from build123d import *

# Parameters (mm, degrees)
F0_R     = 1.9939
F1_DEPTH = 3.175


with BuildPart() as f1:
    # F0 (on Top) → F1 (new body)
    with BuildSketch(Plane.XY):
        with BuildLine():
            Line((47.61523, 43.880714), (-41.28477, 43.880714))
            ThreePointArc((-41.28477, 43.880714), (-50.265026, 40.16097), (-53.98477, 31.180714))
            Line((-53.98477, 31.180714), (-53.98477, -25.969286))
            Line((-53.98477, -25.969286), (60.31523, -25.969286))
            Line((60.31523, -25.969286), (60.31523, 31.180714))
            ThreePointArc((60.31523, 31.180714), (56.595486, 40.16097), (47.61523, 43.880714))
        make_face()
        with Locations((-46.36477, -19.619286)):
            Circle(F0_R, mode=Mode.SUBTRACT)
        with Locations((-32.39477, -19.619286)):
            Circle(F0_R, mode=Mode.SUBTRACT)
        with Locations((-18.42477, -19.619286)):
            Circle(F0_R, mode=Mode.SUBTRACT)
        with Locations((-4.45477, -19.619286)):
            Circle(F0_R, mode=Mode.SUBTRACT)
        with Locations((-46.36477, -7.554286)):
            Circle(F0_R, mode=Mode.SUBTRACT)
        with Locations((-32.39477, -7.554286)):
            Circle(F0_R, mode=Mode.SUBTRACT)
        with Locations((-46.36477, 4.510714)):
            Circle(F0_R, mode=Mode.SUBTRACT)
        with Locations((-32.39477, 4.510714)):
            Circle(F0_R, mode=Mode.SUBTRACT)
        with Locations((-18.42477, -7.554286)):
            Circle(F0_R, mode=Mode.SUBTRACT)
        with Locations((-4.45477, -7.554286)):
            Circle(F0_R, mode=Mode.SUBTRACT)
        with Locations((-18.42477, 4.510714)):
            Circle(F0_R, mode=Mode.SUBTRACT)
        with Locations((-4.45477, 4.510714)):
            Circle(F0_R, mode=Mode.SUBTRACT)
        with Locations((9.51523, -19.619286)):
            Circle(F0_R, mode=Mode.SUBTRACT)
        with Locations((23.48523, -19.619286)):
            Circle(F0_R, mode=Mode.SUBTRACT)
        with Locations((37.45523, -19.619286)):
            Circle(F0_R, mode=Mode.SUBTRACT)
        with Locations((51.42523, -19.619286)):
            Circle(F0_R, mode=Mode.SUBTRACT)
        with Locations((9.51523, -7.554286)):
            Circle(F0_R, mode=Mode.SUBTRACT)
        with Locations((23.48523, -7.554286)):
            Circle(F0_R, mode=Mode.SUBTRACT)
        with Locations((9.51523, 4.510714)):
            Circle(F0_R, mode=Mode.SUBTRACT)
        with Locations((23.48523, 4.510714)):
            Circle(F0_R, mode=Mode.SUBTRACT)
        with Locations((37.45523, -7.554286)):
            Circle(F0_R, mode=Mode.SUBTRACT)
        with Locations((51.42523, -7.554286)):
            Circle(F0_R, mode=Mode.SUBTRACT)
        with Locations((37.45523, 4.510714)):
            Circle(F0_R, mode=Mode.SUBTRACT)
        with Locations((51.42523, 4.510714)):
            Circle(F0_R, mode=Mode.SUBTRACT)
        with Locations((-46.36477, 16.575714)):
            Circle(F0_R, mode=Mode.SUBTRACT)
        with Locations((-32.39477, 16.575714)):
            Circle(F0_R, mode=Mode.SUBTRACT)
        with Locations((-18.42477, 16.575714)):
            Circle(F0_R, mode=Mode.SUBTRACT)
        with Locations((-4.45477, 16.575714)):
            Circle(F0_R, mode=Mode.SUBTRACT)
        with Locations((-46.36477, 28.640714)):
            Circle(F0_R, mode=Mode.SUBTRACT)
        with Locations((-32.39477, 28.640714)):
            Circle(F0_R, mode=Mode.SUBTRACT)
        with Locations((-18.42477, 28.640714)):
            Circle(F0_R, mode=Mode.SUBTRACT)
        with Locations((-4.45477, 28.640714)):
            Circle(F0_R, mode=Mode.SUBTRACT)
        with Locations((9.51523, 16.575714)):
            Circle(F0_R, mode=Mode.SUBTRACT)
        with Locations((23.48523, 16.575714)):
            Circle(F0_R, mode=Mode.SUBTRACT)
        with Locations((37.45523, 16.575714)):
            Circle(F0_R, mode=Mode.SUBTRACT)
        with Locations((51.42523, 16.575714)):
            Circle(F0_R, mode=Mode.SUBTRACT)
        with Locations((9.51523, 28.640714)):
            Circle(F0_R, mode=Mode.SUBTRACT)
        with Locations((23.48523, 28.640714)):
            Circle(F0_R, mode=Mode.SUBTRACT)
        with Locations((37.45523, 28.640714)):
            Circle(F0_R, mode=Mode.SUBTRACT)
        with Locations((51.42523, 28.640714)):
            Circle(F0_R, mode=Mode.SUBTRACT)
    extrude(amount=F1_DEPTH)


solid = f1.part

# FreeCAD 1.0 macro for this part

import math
import FreeCAD as App
import Part
import Sketcher

V = App.Vector
Q = App.Units.Quantity

doc = App.newDocument("Part")
body = doc.addObject("PartDesign::Body", "Body")

sketch1 = doc.addObject("Sketcher::SketchObject", "Sketch")
body.addObject(sketch1)
sketch1.AttachmentSupport = (doc.XY_Plane, [""])
sketch1.MapMode = "FlatFace"
sketch1.addGeometry([
    Part.LineSegment(V(47.6, 43.9, 0), V(-41.3, 43.9, 0)),
    Part.ArcOfCircle(Part.Circle(V(-41.3, 31.2, 0), V(0, 0, 1), 12.7), math.radians(90), math.radians(180)),
    Part.LineSegment(V(-54, 31.2, 0), V(-54, -26, 0)),
    Part.LineSegment(V(-54, -26, 0), V(60.3, -26, 0)),
    Part.LineSegment(V(60.3, -26, 0), V(60.3, 31.2, 0)),
    Part.ArcOfCircle(Part.Circle(V(47.6, 31.2, 0), V(0, 0, 1), 12.7), math.radians(0), math.radians(90)),
    Part.Circle(V(-46.4, -19.6, 0), V(0, 0, 1), 2),
    Part.Circle(V(-32.4, -19.6, 0), V(0, 0, 1), 2),
    Part.Circle(V(-18.4, -19.6, 0), V(0, 0, 1), 2),
    Part.Circle(V(-4.5, -19.6, 0), V(0, 0, 1), 2),
    Part.Circle(V(-46.4, -7.6, 0), V(0, 0, 1), 2),
    Part.Circle(V(-32.4, -7.6, 0), V(0, 0, 1), 2),
    Part.Circle(V(-18.4, -7.6, 0), V(0, 0, 1), 2),
    Part.Circle(V(-4.5, -7.6, 0), V(0, 0, 1), 2),
    Part.Circle(V(9.5, -19.6, 0), V(0, 0, 1), 2),
    Part.Circle(V(23.5, -19.6, 0), V(0, 0, 1), 2),
    Part.Circle(V(37.5, -19.6, 0), V(0, 0, 1), 2),
    Part.Circle(V(51.4, -19.6, 0), V(0, 0, 1), 2),
    Part.Circle(V(9.5, -7.6, 0), V(0, 0, 1), 2),
    Part.Circle(V(23.5, -7.6, 0), V(0, 0, 1), 2),
    Part.Circle(V(37.5, -7.6, 0), V(0, 0, 1), 2),
    Part.Circle(V(51.4, -7.6, 0), V(0, 0, 1), 2),
    Part.Circle(V(-46.4, 4.5, 0), V(0, 0, 1), 2),
    Part.Circle(V(-32.4, 4.5, 0), V(0, 0, 1), 2),
    Part.Circle(V(-46.4, 16.6, 0), V(0, 0, 1), 2),
    Part.Circle(V(-32.4, 16.6, 0), V(0, 0, 1), 2),
    Part.Circle(V(-18.4, 4.5, 0), V(0, 0, 1), 2),
    Part.Circle(V(-4.5, 4.5, 0), V(0, 0, 1), 2),
    Part.Circle(V(-18.4, 16.6, 0), V(0, 0, 1), 2),
    Part.Circle(V(-4.5, 16.6, 0), V(0, 0, 1), 2),
    Part.Circle(V(-46.4, 28.6, 0), V(0, 0, 1), 2),
    Part.Circle(V(-32.4, 28.6, 0), V(0, 0, 1), 2),
    Part.Circle(V(-18.4, 28.6, 0), V(0, 0, 1), 2),
    Part.Circle(V(-4.5, 28.6, 0), V(0, 0, 1), 2),
    Part.Circle(V(9.5, 4.5, 0), V(0, 0, 1), 2),
    Part.Circle(V(23.5, 4.5, 0), V(0, 0, 1), 2),
    Part.Circle(V(9.5, 16.6, 0), V(0, 0, 1), 2),
    Part.Circle(V(23.5, 16.6, 0), V(0, 0, 1), 2),
    Part.Circle(V(37.5, 4.5, 0), V(0, 0, 1), 2),
    Part.Circle(V(51.4, 4.5, 0), V(0, 0, 1), 2),
    Part.Circle(V(37.5, 16.6, 0), V(0, 0, 1), 2),
    Part.Circle(V(51.4, 16.6, 0), V(0, 0, 1), 2),
    Part.Circle(V(9.5, 28.6, 0), V(0, 0, 1), 2),
    Part.Circle(V(23.5, 28.6, 0), V(0, 0, 1), 2),
    Part.Circle(V(37.5, 28.6, 0), V(0, 0, 1), 2),
    Part.Circle(V(51.4, 28.6, 0), V(0, 0, 1), 2),
], False)
sketch1.addConstraint([
    Sketcher.Constraint("Tangent", 0, 2, 1, 1),
    Sketcher.Constraint("Tangent", 1, 2, 2, 1),
    Sketcher.Constraint("Coincident", 2, 2, 3, 1),
    Sketcher.Constraint("Coincident", 3, 2, 4, 1),
    Sketcher.Constraint("Tangent", 4, 2, 5, 1),
    Sketcher.Constraint("Tangent", 5, 2, 0, 1),
    Sketcher.Constraint("Horizontal", 0),
    Sketcher.Constraint("Vertical", 2),
    Sketcher.Constraint("Horizontal", 3),
    Sketcher.Constraint("Vertical", 4),
    Sketcher.Constraint("Equal", 1, 5),
    Sketcher.Constraint("Equal", 6, 7),
    Sketcher.Constraint("Equal", 7, 8),
    Sketcher.Constraint("Equal", 8, 9),
    Sketcher.Constraint("Equal", 9, 10),
    Sketcher.Constraint("Equal", 10, 11),
    Sketcher.Constraint("Equal", 11, 12),
    Sketcher.Constraint("Equal", 12, 13),
    Sketcher.Constraint("Equal", 13, 14),
    Sketcher.Constraint("Equal", 14, 15),
    Sketcher.Constraint("Equal", 15, 16),
    Sketcher.Constraint("Equal", 16, 17),
    Sketcher.Constraint("Equal", 17, 18),
    Sketcher.Constraint("Equal", 18, 19),
    Sketcher.Constraint("Equal", 19, 20),
    Sketcher.Constraint("Equal", 20, 21),
    Sketcher.Constraint("Equal", 21, 22),
    Sketcher.Constraint("Equal", 22, 23),
    Sketcher.Constraint("Equal", 23, 24),
    Sketcher.Constraint("Equal", 24, 25),
    Sketcher.Constraint("Equal", 25, 26),
    Sketcher.Constraint("Equal", 26, 27),
    Sketcher.Constraint("Equal", 27, 28),
    Sketcher.Constraint("Equal", 28, 29),
    Sketcher.Constraint("Equal", 29, 30),
    Sketcher.Constraint("Equal", 30, 31),
    Sketcher.Constraint("Equal", 31, 32),
    Sketcher.Constraint("Equal", 32, 33),
    Sketcher.Constraint("Equal", 33, 34),
    Sketcher.Constraint("Equal", 34, 35),
    Sketcher.Constraint("Equal", 35, 36),
    Sketcher.Constraint("Equal", 36, 37),
    Sketcher.Constraint("Equal", 37, 38),
    Sketcher.Constraint("Equal", 38, 39),
    Sketcher.Constraint("Equal", 39, 40),
    Sketcher.Constraint("Equal", 40, 41),
    Sketcher.Constraint("Equal", 41, 42),
    Sketcher.Constraint("Equal", 42, 43),
    Sketcher.Constraint("Equal", 43, 44),
    Sketcher.Constraint("Equal", 44, 45),
    Sketcher.Constraint("Horizontal", 6, 3, 7, 3),
    Sketcher.Constraint("Horizontal", 7, 3, 8, 3),
    Sketcher.Constraint("Horizontal", 8, 3, 9, 3),
    Sketcher.Constraint("Horizontal", 10, 3, 11, 3),
    Sketcher.Constraint("Horizontal", 11, 3, 12, 3),
    Sketcher.Constraint("Horizontal", 12, 3, 13, 3),
    Sketcher.Constraint("Horizontal", 9, 3, 14, 3),
    Sketcher.Constraint("Horizontal", 14, 3, 15, 3),
    Sketcher.Constraint("Horizontal", 15, 3, 16, 3),
    Sketcher.Constraint("Horizontal", 16, 3, 17, 3),
    Sketcher.Constraint("Horizontal", 13, 3, 18, 3),
    Sketcher.Constraint("Horizontal", 18, 3, 19, 3),
    Sketcher.Constraint("Horizontal", 19, 3, 20, 3),
    Sketcher.Constraint("Horizontal", 20, 3, 21, 3),
    Sketcher.Constraint("Horizontal", 22, 3, 23, 3),
    Sketcher.Constraint("Horizontal", 24, 3, 25, 3),
    Sketcher.Constraint("Horizontal", 23, 3, 26, 3),
    Sketcher.Constraint("Horizontal", 26, 3, 27, 3),
    Sketcher.Constraint("Horizontal", 25, 3, 28, 3),
    Sketcher.Constraint("Horizontal", 28, 3, 29, 3),
    Sketcher.Constraint("Horizontal", 30, 3, 31, 3),
    Sketcher.Constraint("Horizontal", 31, 3, 32, 3),
    Sketcher.Constraint("Horizontal", 32, 3, 33, 3),
    Sketcher.Constraint("Horizontal", 27, 3, 34, 3),
    Sketcher.Constraint("Horizontal", 34, 3, 35, 3),
    Sketcher.Constraint("Horizontal", 29, 3, 36, 3),
    Sketcher.Constraint("Horizontal", 36, 3, 37, 3),
    Sketcher.Constraint("Horizontal", 35, 3, 38, 3),
    Sketcher.Constraint("Horizontal", 38, 3, 39, 3),
    Sketcher.Constraint("Horizontal", 37, 3, 40, 3),
    Sketcher.Constraint("Horizontal", 40, 3, 41, 3),
    Sketcher.Constraint("Horizontal", 33, 3, 42, 3),
    Sketcher.Constraint("Horizontal", 42, 3, 43, 3),
    Sketcher.Constraint("Horizontal", 43, 3, 44, 3),
    Sketcher.Constraint("Horizontal", 44, 3, 45, 3),
    Sketcher.Constraint("Vertical", 6, 3, 10, 3),
    Sketcher.Constraint("Vertical", 7, 3, 11, 3),
    Sketcher.Constraint("Vertical", 8, 3, 12, 3),
    Sketcher.Constraint("Vertical", 9, 3, 13, 3),
    Sketcher.Constraint("Vertical", 14, 3, 18, 3),
    Sketcher.Constraint("Vertical", 15, 3, 19, 3),
    Sketcher.Constraint("Vertical", 16, 3, 20, 3),
    Sketcher.Constraint("Vertical", 17, 3, 21, 3),
    Sketcher.Constraint("Vertical", 10, 3, 22, 3),
    Sketcher.Constraint("Vertical", 11, 3, 23, 3),
    Sketcher.Constraint("Vertical", 22, 3, 24, 3),
    Sketcher.Constraint("Vertical", 23, 3, 25, 3),
    Sketcher.Constraint("Vertical", 12, 3, 26, 3),
    Sketcher.Constraint("Vertical", 13, 3, 27, 3),
    Sketcher.Constraint("Vertical", 26, 3, 28, 3),
    Sketcher.Constraint("Vertical", 27, 3, 29, 3),
    Sketcher.Constraint("Vertical", 24, 3, 30, 3),
    Sketcher.Constraint("Vertical", 25, 3, 31, 3),
    Sketcher.Constraint("Vertical", 28, 3, 32, 3),
    Sketcher.Constraint("Vertical", 29, 3, 33, 3),
    Sketcher.Constraint("Vertical", 18, 3, 34, 3),
    Sketcher.Constraint("Vertical", 19, 3, 35, 3),
    Sketcher.Constraint("Vertical", 34, 3, 36, 3),
    Sketcher.Constraint("Vertical", 35, 3, 37, 3),
    Sketcher.Constraint("Vertical", 20, 3, 38, 3),
    Sketcher.Constraint("Vertical", 21, 3, 39, 3),
    Sketcher.Constraint("Vertical", 38, 3, 40, 3),
    Sketcher.Constraint("Vertical", 39, 3, 41, 3),
    Sketcher.Constraint("Vertical", 36, 3, 42, 3),
    Sketcher.Constraint("Vertical", 37, 3, 43, 3),
    Sketcher.Constraint("Vertical", 40, 3, 44, 3),
    Sketcher.Constraint("Vertical", 41, 3, 45, 3),
    Sketcher.Constraint("Radius", 1, Q("0.5 in")),
    Sketcher.Constraint("Diameter", 6, Q("0.157 in")),
    Sketcher.Constraint("DistanceX", 0, 2, 0, 1, Q("3.5 in")),
    Sketcher.Constraint("DistanceY", 6, 3, 1, 3, Q("2 in")),
    Sketcher.Constraint("DistanceY", 2, 2, 2, 1, Q("2.25 in")),
    Sketcher.Constraint("DistanceX", 6, 3, 1, 3, Q("0.2 in")),
    Sketcher.Constraint("DistanceX", 6, 3, 8, 3, Q("1.1 in")),
    Sketcher.Constraint("DistanceX", 7, 3, 9, 3, Q("1.1 in")),
    Sketcher.Constraint("DistanceX", 8, 3, 14, 3, Q("1.1 in")),
    Sketcher.Constraint("DistanceX", 9, 3, 15, 3, Q("1.1 in")),
    Sketcher.Constraint("DistanceX", 14, 3, 16, 3, Q("1.1 in")),
    Sketcher.Constraint("DistanceX", 15, 3, 17, 3, Q("1.1 in")),
    Sketcher.Constraint("DistanceY", 30, 3, 1, 3, Q("0.1 in")),
    Sketcher.Constraint("DistanceY", 2, 2, 22, 3, Q("1.2 in")),
    Sketcher.Constraint("DistanceX", 6, 3, 7, 3, Q("0.55 in")),
    Sketcher.Constraint("DistanceY", 10, 3, 24, 3, Q("0.95 in")),
    Sketcher.Constraint("DistanceY", 6, 3, 10, 3, Q("0.475 in")),
    Sketcher.Constraint("DistanceX", 1, 3, -1, 1, Q("41.28477 mm")),
    Sketcher.Constraint("DistanceY", -1, 1, 1, 3, Q("31.180714 mm")),
])
pad1 = doc.addObject("PartDesign::Pad", "Pad")
body.addObject(pad1)
pad1.Profile = sketch1
pad1.Length = Q("0.125 in")

doc.recompute()
